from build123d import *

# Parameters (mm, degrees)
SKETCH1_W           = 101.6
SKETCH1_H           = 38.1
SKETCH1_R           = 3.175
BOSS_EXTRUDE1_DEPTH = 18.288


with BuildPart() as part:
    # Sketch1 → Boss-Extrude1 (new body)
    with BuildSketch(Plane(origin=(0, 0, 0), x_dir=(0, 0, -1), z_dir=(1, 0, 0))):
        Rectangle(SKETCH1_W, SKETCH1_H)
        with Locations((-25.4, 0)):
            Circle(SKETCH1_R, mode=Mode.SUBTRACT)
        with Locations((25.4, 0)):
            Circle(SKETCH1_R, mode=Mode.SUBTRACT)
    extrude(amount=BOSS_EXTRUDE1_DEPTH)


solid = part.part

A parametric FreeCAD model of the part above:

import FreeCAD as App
import Part
import Sketcher

V = App.Vector
Q = App.Units.Quantity

doc = App.newDocument("Part")
body = doc.addObject("PartDesign::Body", "Body")

# Sketch on YZ plane
sketch1 = doc.addObject("Sketcher::SketchObject", "Sketch")
body.addObject(sketch1)
sketch1.AttachmentSupport = (doc.YZ_Plane, [""])
sketch1.MapMode = "FlatFace"
sketch1.addGeometry([
    Part.LineSegment(V(19.1, 50.8, 0), V(-19.1, 50.8, 0)),  # 0
    Part.LineSegment(V(-19.1, 50.8, 0), V(-19.1, -50.8, 0)),  # 1
    Part.LineSegment(V(-19.1, -50.8, 0), V(19.1, -50.8, 0)),  # 2
    Part.LineSegment(V(19.1, -50.8, 0), V(19.1, 50.8, 0)),  # 3
    Part.Circle(V(0, 25.4, 0), V(0, 0, 1), 3.2),  # 4
    Part.Circle(V(0, -25.4, 0), V(0, 0, 1), 3.2),  # 5
], False)
sketch1.addConstraint([
    Sketcher.Constraint("Coincident", 0, 2, 1, 1),
    Sketcher.Constraint("Coincident", 1, 2, 2, 1),
    Sketcher.Constraint("Coincident", 2, 2, 3, 1),
    Sketcher.Constraint("Coincident", 3, 2, 0, 1),
    Sketcher.Constraint("Horizontal", 0),
    Sketcher.Constraint("Vertical", 1),
    Sketcher.Constraint("Horizontal", 2),
    Sketcher.Constraint("Vertical", 3),
    Sketcher.Constraint("Equal", 4, 5),
    Sketcher.Constraint("Symmetric", 4, 3, 5, 3, -1, 1),
    Sketcher.Constraint("Symmetric", 0, 2, 2, 2, -1, 1),
    Sketcher.Constraint("PointOnObject", 4, 3, -2),
    Sketcher.Constraint("Diameter", 4, Q("0.25 in")),
    Sketcher.Constraint("DistanceY", 1, 2, 1, 1, Q("4 in")),
    Sketcher.Constraint("DistanceX", 0, 2, 0, 1, Q("1.5 in")),
    Sketcher.Constraint("DistanceY", -1, 1, 4, 3, Q("1 in")),
])
pad1 = doc.addObject("PartDesign::Pad", "Pad")
body.addObject(pad1)
pad1.Profile = sketch1
pad1.Length = Q("0.72 in")

doc.recompute()
